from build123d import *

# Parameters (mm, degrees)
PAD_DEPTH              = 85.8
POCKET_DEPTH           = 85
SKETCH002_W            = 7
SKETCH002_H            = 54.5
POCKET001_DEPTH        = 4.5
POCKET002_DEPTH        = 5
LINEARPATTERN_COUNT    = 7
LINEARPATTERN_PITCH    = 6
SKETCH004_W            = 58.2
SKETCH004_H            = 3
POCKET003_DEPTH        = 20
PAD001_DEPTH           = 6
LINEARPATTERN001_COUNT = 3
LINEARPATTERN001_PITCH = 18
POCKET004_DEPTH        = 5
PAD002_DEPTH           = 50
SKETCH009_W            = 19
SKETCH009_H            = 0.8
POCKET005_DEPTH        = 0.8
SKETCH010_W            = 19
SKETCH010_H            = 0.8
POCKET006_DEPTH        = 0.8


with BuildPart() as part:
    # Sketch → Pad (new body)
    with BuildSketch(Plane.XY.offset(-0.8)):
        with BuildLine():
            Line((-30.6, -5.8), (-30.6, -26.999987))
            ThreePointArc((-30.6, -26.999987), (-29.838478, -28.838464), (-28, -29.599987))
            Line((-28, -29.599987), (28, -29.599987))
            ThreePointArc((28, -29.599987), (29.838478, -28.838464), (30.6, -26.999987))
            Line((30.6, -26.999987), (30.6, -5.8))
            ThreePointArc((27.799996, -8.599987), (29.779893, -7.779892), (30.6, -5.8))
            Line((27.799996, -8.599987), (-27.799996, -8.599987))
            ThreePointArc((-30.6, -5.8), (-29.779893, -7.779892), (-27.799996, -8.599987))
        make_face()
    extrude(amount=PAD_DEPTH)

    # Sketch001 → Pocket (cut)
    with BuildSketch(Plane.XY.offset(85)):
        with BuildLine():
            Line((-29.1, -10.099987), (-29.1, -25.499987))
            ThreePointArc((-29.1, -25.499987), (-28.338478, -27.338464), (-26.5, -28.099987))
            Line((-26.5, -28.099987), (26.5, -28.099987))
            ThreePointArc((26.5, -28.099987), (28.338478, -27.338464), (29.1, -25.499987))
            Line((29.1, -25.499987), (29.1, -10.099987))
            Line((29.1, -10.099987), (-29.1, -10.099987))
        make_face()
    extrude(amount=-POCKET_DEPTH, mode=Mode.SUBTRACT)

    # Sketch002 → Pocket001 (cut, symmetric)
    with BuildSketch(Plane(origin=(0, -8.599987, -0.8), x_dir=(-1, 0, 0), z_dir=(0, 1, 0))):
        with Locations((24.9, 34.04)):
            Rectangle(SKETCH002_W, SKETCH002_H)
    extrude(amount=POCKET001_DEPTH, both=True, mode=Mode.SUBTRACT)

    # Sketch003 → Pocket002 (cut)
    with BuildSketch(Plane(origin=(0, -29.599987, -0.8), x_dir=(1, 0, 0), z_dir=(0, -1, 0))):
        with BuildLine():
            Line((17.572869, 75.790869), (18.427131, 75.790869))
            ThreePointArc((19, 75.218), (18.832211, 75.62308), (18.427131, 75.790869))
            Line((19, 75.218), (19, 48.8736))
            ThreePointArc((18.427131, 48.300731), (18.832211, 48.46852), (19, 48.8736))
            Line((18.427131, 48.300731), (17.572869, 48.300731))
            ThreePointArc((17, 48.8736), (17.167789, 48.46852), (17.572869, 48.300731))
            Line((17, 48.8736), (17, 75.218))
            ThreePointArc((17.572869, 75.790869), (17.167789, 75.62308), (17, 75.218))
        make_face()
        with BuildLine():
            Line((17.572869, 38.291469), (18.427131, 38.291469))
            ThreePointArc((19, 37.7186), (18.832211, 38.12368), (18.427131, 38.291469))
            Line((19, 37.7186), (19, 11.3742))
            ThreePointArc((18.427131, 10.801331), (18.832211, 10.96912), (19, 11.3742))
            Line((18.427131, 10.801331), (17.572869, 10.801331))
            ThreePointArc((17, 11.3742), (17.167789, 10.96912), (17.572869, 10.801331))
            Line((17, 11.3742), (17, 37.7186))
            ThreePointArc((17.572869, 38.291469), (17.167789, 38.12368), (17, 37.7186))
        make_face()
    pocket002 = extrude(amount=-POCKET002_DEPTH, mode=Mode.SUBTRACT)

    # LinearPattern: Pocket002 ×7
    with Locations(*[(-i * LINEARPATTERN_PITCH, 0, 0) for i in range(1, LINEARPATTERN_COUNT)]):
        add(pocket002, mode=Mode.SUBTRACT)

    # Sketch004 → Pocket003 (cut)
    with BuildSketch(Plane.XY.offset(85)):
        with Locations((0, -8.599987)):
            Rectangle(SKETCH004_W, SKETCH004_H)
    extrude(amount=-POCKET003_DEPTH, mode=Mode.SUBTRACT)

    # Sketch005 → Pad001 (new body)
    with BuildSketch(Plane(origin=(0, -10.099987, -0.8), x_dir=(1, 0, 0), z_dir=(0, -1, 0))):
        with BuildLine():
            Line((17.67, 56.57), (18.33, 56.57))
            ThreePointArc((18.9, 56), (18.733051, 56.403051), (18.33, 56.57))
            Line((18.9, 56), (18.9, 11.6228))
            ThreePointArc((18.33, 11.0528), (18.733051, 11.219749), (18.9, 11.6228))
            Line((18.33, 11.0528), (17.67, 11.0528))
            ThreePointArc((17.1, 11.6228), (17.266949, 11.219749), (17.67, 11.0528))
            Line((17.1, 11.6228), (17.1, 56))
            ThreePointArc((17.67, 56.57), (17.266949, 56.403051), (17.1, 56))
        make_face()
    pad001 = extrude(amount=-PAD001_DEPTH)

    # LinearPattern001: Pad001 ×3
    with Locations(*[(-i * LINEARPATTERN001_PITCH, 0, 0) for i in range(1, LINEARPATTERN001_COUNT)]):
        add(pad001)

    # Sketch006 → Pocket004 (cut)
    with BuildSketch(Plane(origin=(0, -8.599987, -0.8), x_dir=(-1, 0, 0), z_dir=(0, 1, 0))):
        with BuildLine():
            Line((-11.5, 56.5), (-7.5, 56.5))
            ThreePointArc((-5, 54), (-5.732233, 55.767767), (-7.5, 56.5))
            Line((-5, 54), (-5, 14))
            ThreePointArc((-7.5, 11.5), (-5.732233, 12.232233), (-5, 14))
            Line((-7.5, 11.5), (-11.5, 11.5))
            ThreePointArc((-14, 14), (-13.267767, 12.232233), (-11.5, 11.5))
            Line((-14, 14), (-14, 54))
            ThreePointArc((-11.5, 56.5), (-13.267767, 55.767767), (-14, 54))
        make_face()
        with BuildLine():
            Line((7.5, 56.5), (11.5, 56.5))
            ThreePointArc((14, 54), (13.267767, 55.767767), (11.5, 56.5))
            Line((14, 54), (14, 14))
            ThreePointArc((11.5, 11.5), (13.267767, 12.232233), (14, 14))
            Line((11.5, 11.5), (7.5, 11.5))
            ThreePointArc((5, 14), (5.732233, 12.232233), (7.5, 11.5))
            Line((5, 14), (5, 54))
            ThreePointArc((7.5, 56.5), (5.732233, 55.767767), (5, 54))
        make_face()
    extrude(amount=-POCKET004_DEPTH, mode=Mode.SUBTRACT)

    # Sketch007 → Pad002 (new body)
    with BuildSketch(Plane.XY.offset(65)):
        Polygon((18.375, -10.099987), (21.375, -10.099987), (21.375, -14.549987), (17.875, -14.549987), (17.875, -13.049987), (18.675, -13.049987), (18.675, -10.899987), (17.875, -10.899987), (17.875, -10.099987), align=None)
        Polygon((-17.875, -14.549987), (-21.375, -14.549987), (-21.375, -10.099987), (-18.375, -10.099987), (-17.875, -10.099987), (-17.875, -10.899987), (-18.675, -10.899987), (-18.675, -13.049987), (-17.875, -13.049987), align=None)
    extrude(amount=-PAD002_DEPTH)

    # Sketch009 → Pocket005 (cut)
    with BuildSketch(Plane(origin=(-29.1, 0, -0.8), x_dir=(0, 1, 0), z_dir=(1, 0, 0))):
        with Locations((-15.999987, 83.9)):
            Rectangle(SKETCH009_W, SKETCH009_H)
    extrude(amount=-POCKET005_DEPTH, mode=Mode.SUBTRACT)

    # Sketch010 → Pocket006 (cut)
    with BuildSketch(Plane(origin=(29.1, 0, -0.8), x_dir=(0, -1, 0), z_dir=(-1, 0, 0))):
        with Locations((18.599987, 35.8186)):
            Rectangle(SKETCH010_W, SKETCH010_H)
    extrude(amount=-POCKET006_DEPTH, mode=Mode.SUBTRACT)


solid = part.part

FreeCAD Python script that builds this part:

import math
import FreeCAD as App
import Part
import Sketcher
Q = App.Units.Quantity

doc = App.newDocument("Part")
body = doc.addObject("PartDesign::Body", "Body")

sketch1 = doc.addObject("Sketcher::SketchObject", "Sketch")
body.addObject(sketch1)
sketch1.AttachmentSupport = (doc.XY_Plane, [""])
sketch1.MapMode = "FlatFace"
sketch1.AttachmentOffset = App.Placement(App.Vector(0, 0, -0.8), App.Rotation())
sketch1.addGeometry([
    Part.LineSegment(App.Vector(-30.6, -5.8, 0), App.Vector(-30.6, -26.999987, 0)),
    Part.ArcOfCircle(Part.Circle(App.Vector(-28, -26.999987, 0), App.Vector(0, 0, 1), 2.6), math.radians(-179.99999), math.radians(-90.00001)),
    Part.LineSegment(App.Vector(-28, -29.599987, 0), App.Vector(28, -29.599987, 0)),
    Part.ArcOfCircle(Part.Circle(App.Vector(28, -26.999987, 0), App.Vector(0, 0, 1), 2.6), math.radians(-89.99999), math.radians(-0.00001)),
    Part.LineSegment(App.Vector(30.6, -26.999987, 0), App.Vector(30.6, -5.8, 0)),
    Part.ArcOfCircle(Part.Circle(App.Vector(27.8, -5.799987, 0), App.Vector(0, 0, 1), 2.8), math.radians(-90.000083), math.radians(-0.000265)),
    Part.LineSegment(App.Vector(27.799996, -8.599987, 0), App.Vector(-27.799996, -8.599987, 0)),
    Part.ArcOfCircle(Part.Circle(App.Vector(-27.8, -5.799987, 0), App.Vector(0, 0, 1), 2.8), math.radians(-179.999735), math.radians(-89.999917)),
], False)
sketch1.addConstraint([
    Sketcher.Constraint("Tangent", 0, 2, 1, 1),
    Sketcher.Constraint("Tangent", 1, 2, 2, 1),
    Sketcher.Constraint("Tangent", 2, 2, 3, 1),
    Sketcher.Constraint("Tangent", 3, 2, 4, 1),
    Sketcher.Constraint("Coincident", 4, 2, 5, 2),
    Sketcher.Constraint("Tangent", 5, 1, 6, 1),
    Sketcher.Constraint("Tangent", 6, 2, 7, 2),
    Sketcher.Constraint("Coincident", 7, 1, 0, 1),
    Sketcher.Constraint("Vertical", 0),
    Sketcher.Constraint("Horizontal", 2),
    Sketcher.Constraint("Vertical", 4),
    Sketcher.Constraint("Horizontal", 6),
    Sketcher.Constraint("Equal", 1, 3),
    Sketcher.Constraint("Equal", 5, 7),
    Sketcher.Constraint("Symmetric", 4, 2, 7, 1, -2),
    Sketcher.Constraint("Radius", 1, Q("2.6 mm")),
    Sketcher.Constraint("Radius", 5, Q("2.8 mm")),
    Sketcher.Constraint("DistanceX", 2, 1, 2, 2, Q("56 mm")),
    Sketcher.Constraint("DistanceY", 2, 2, 5, 1, Q("21 mm")),
    Sketcher.Constraint("DistanceY", 4, 2, -1, 1, Q("5.8 mm")),
    Sketcher.Constraint("DistanceY", 0, 2, 0, 1, Q("21.199987 mm")),
])
pad1 = doc.addObject("PartDesign::Pad", "Pad")
body.addObject(pad1)
pad1.Profile = sketch1
pad1.Length = 85.8

sketch2 = doc.addObject("Sketcher::SketchObject", "Sketch001")
body.addObject(sketch2)
sketch2.AttachmentSupport = (doc.XY_Plane, [""])
sketch2.MapMode = "FlatFace"
sketch2.AttachmentOffset = App.Placement(App.Vector(0, 0, 85), App.Rotation())
sketch2.addGeometry([
    Part.LineSegment(App.Vector(-29.1, -10.099987, 0), App.Vector(-29.1, -25.499987, 0)),
    Part.ArcOfCircle(Part.Circle(App.Vector(-26.5, -25.499987, 0), App.Vector(0, 0, 1), 2.6), math.radians(-179.99999), math.radians(-90.00001)),
    Part.LineSegment(App.Vector(-26.5, -28.099987, 0), App.Vector(26.5, -28.099987, 0)),
    Part.ArcOfCircle(Part.Circle(App.Vector(26.5, -25.499987, 0), App.Vector(0, 0, 1), 2.6), math.radians(-89.99999), math.radians(-0.00001)),
    Part.LineSegment(App.Vector(29.1, -25.499987, 0), App.Vector(29.1, -10.099987, 0)),
    Part.LineSegment(App.Vector(29.1, -10.099987, 0), App.Vector(-29.1, -10.099987, 0)),
], False)
sketch2.addConstraint([
    Sketcher.Constraint("Tangent", 0, 2, 1, 1),
    Sketcher.Constraint("Tangent", 1, 2, 2, 1),
    Sketcher.Constraint("Tangent", 2, 2, 3, 1),
    Sketcher.Constraint("Tangent", 3, 2, 4, 1),
    Sketcher.Constraint("Coincident", 4, 2, 5, 1),
    Sketcher.Constraint("Coincident", 5, 2, 0, 1),
    Sketcher.Constraint("Vertical", 0),
    Sketcher.Constraint("Horizontal", 2),
    Sketcher.Constraint("Vertical", 4),
    Sketcher.Constraint("Horizontal", 5),
    Sketcher.Constraint("Equal", 1, 3),
    Sketcher.Constraint("Radius", 1, Q("2.6 mm")),
    Sketcher.Constraint("DistanceX", 2, 1, 2, 2, Q("53 mm")),
    Sketcher.Constraint("DistanceY", 0, 2, 0, 1, Q("15.4 mm")),
    Sketcher.Constraint("DistanceX", 1, 3, -1, 1, Q("26.5 mm")),
    Sketcher.Constraint("DistanceY", 1, 3, -1, 1, Q("25.499987 mm")),
])
pocket1 = doc.addObject("PartDesign::Pocket", "Pocket")
body.addObject(pocket1)
pocket1.Profile = sketch2
pocket1.Length = 85

sketch3 = doc.addObject("Sketcher::SketchObject", "Sketch002")
body.addObject(sketch3)
sketch3.AttachmentSupport = (doc.XZ_Plane, [""])
sketch3.MapMode = "FlatFace"
sketch3.AttachmentOffset = App.Placement(App.Vector(0, 0, 8.599987), App.Rotation())
sketch3.addGeometry([
    Part.LineSegment(App.Vector(-21.4, 60.49, 0), App.Vector(-21.4, 5.99, 0)),
    Part.LineSegment(App.Vector(-21.4, 5.99, 0), App.Vector(-28.4, 5.99, 0)),
    Part.LineSegment(App.Vector(-28.4, 5.99, 0), App.Vector(-28.4, 60.49, 0)),
    Part.LineSegment(App.Vector(-28.4, 60.49, 0), App.Vector(-21.4, 60.49, 0)),
], False)
sketch3.addConstraint([
    Sketcher.Constraint("Coincident", 0, 2, 1, 1),
    Sketcher.Constraint("Coincident", 1, 2, 2, 1),
    Sketcher.Constraint("Coincident", 2, 2, 3, 1),
    Sketcher.Constraint("Coincident", 3, 2, 0, 1),
    Sketcher.Constraint("Vertical", 0),
    Sketcher.Constraint("Horizontal", 1),
    Sketcher.Constraint("Vertical", 2),
    Sketcher.Constraint("Horizontal", 3),
    Sketcher.Constraint("DistanceX", 1, 2, 1, 1, Q("7 mm")),
    Sketcher.Constraint("DistanceY", 0, 2, 0, 1, Q("54.5 mm")),
    Sketcher.Constraint("DistanceX", 0, 2, -1, 1, Q("21.4 mm")),
    Sketcher.Constraint("DistanceY", -1, 1, 0, 2, Q("5.99 mm")),
])
pocket2 = doc.addObject("PartDesign::Pocket", "Pocket001")
body.addObject(pocket2)
pocket2.Profile = sketch3
pocket2.Length = 9
pocket2.Midplane = True

sketch4 = doc.addObject("Sketcher::SketchObject", "Sketch003")
body.addObject(sketch4)
sketch4.AttachmentSupport = (doc.XZ_Plane, [""])
sketch4.MapMode = "FlatFace"
sketch4.AttachmentOffset = App.Placement(App.Vector(0, 0, 29.599987), App.Rotation())
sketch4.addGeometry([
    Part.LineSegment(App.Vector(18.427131, 74.990869, 0), App.Vector(17.572869, 74.990869, 0)),
    Part.ArcOfCircle(Part.Circle(App.Vector(17.572867, 74.418002, 0), App.Vector(0, 0, 1), 0.572867), math.radians(89.999848), math.radians(180.000152)),
    Part.LineSegment(App.Vector(17, 74.418, 0), App.Vector(17, 48.0736, 0)),
    Part.ArcOfCircle(Part.Circle(App.Vector(17.572867, 48.073598, 0), App.Vector(0, 0, 1), 0.572867), math.radians(179.999848), math.radians(270.000152)),
    Part.LineSegment(App.Vector(17.572869, 47.500731, 0), App.Vector(18.427131, 47.500731, 0)),
    Part.ArcOfCircle(Part.Circle(App.Vector(18.427133, 48.073598, 0), App.Vector(0, 0, 1), 0.572867), math.radians(-90.000152), math.radians(0.000152)),
    Part.LineSegment(App.Vector(19, 48.0736, 0), App.Vector(19, 74.418, 0)),
    Part.ArcOfCircle(Part.Circle(App.Vector(18.427133, 74.418002, 0), App.Vector(0, 0, 1), 0.572867), math.radians(-0.000152), math.radians(90.000152)),
    Part.LineSegment(App.Vector(18.427131, 37.491469, 0), App.Vector(17.572869, 37.491469, 0)),
    Part.ArcOfCircle(Part.Circle(App.Vector(17.572867, 36.918602, 0), App.Vector(0, 0, 1), 0.572867), math.radians(89.999848), math.radians(180.000152)),
    Part.LineSegment(App.Vector(17, 36.9186, 0), App.Vector(17, 10.5742, 0)),
    Part.ArcOfCircle(Part.Circle(App.Vector(17.572867, 10.574198, 0), App.Vector(0, 0, 1), 0.572867), math.radians(179.999848), math.radians(270.000152)),
    Part.LineSegment(App.Vector(17.572869, 10.001331, 0), App.Vector(18.427131, 10.001331, 0)),
    Part.ArcOfCircle(Part.Circle(App.Vector(18.427133, 10.574198, 0), App.Vector(0, 0, 1), 0.572867), math.radians(-90.000152), math.radians(0.000152)),
    Part.LineSegment(App.Vector(19, 10.5742, 0), App.Vector(19, 36.9186, 0)),
    Part.ArcOfCircle(Part.Circle(App.Vector(18.427133, 36.918602, 0), App.Vector(0, 0, 1), 0.572867), math.radians(-0.000152), math.radians(90.000152)),
], False)
sketch4.addConstraint([
    Sketcher.Constraint("Coincident", 0, 2, 1, 1),
    Sketcher.Constraint("Coincident", 1, 2, 2, 1),
    Sketcher.Constraint("Coincident", 2, 2, 3, 1),
    Sketcher.Constraint("Coincident", 3, 2, 4, 1),
    Sketcher.Constraint("Coincident", 4, 2, 5, 1),
    Sketcher.Constraint("Coincident", 5, 2, 6, 1),
    Sketcher.Constraint("Coincident", 6, 2, 7, 1),
    Sketcher.Constraint("Coincident", 7, 2, 0, 1),
    Sketcher.Constraint("Coincident", 8, 2, 9, 1),
    Sketcher.Constraint("Coincident", 9, 2, 10, 1),
    Sketcher.Constraint("Coincident", 10, 2, 11, 1),
    Sketcher.Constraint("Coincident", 11, 2, 12, 1),
    Sketcher.Constraint("Coincident", 12, 2, 13, 1),
    Sketcher.Constraint("Coincident", 13, 2, 14, 1),
    Sketcher.Constraint("Coincident", 14, 2, 15, 1),
    Sketcher.Constraint("Coincident", 15, 2, 8, 1),
    Sketcher.Constraint("Horizontal", 0),
    Sketcher.Constraint("Vertical", 2),
    Sketcher.Constraint("Horizontal", 4),
    Sketcher.Constraint("Vertical", 6),
    Sketcher.Constraint("Horizontal", 8),
    Sketcher.Constraint("Vertical", 10),
    Sketcher.Constraint("Horizontal", 12),
    Sketcher.Constraint("Vertical", 14),
    Sketcher.Constraint("Equal", 1, 3),
    Sketcher.Constraint("Equal", 3, 5),
    Sketcher.Constraint("Equal", 5, 7),
    Sketcher.Constraint("Equal", 7, 9),
    Sketcher.Constraint("Equal", 9, 11),
    Sketcher.Constraint("Equal", 11, 13),
    Sketcher.Constraint("Equal", 13, 15),
    Sketcher.Constraint("Horizontal", 7, 3, 1, 2),
    Sketcher.Constraint("Horizontal", 5, 3, 2, 2),
    Sketcher.Constraint("Horizontal", 2, 2, 5, 2),
    Sketcher.Constraint("Horizontal", 1, 2, 6, 2),
    Sketcher.Constraint("Horizontal", 15, 3, 9, 2),
    Sketcher.Constraint("Horizontal", 13, 3, 10, 2),
    Sketcher.Constraint("Horizontal", 10, 2, 13, 2),
    Sketcher.Constraint("Horizontal", 9, 2, 14, 2),
    Sketcher.Constraint("Vertical", 3, 3, 9, 3),
    Sketcher.Constraint("Vertical", 7, 3, 13, 3),
    Sketcher.Constraint("Vertical", 11, 3, 0, 2),
    Sketcher.Constraint("Vertical", 0, 2, 3, 2),
    Sketcher.Constraint("Vertical", 15, 3, 4, 2),
    Sketcher.Constraint("Vertical", 4, 2, 7, 2),
    Sketcher.Constraint("Vertical", 3, 2, 8, 2),
    Sketcher.Constraint("Vertical", 8, 2, 11, 2),
    Sketcher.Constraint("Vertical", 7, 2, 12, 2),
    Sketcher.Constraint("Vertical", 12, 2, 15, 2),
    Sketcher.Constraint("Equal", 6, 10),
    Sketcher.Constraint("DistanceX", -1, 1, 1, 2, Q("17 mm")),
    Sketcher.Constraint("DistanceX", -1, 1, 5, 2, Q("19 mm")),
    Sketcher.Constraint("DistanceY", 2, 2, 2, 1, Q("26.3444 mm")),
    Sketcher.Constraint("DistanceY", -1, 1, 1, 3, Q("74.418002 mm")),
    Sketcher.Constraint("Radius", 1, Q("0.572867 mm")),
    Sketcher.Constraint("DistanceY", 9, 3, 2, 2, Q("11.154998 mm")),
])
pocket3 = doc.addObject("PartDesign::Pocket", "Pocket002")
body.addObject(pocket3)
pocket3.Profile = sketch4
pocket3.Length = 5
doc.recompute()

linearpattern = doc.addObject("PartDesign::LinearPattern", "LinearPattern")
body.addObject(linearpattern)
linearpattern.Originals = [pocket3]
linearpattern.Direction = (doc.X_Axis, [""])
linearpattern.Mode = "offset"
linearpattern.Offset = 6
linearpattern.Occurrences = 7
linearpattern.Reversed = True
body.Tip = linearpattern

sketch5 = doc.addObject("Sketcher::SketchObject", "Sketch004")
body.addObject(sketch5)
sketch5.AttachmentSupport = (doc.XY_Plane, [""])
sketch5.MapMode = "FlatFace"
sketch5.AttachmentOffset = App.Placement(App.Vector(0, 0, 85), App.Rotation())
sketch5.addGeometry([
    Part.LineSegment(App.Vector(-29.1, -7.099987, 0), App.Vector(-29.1, -10.099987, 0)),
    Part.LineSegment(App.Vector(-29.1, -10.099987, 0), App.Vector(29.1, -10.099987, 0)),
    Part.LineSegment(App.Vector(29.1, -10.099987, 0), App.Vector(29.1, -7.099987, 0)),
    Part.LineSegment(App.Vector(29.1, -7.099987, 0), App.Vector(-29.1, -7.099987, 0)),
], False)
sketch5.addConstraint([
    Sketcher.Constraint("Coincident", 0, 2, 1, 1),
    Sketcher.Constraint("Coincident", 1, 2, 2, 1),
    Sketcher.Constraint("Coincident", 2, 2, 3, 1),
    Sketcher.Constraint("Coincident", 3, 2, 0, 1),
    Sketcher.Constraint("Vertical", 0),
    Sketcher.Constraint("Horizontal", 1),
    Sketcher.Constraint("Vertical", 2),
    Sketcher.Constraint("Horizontal", 3),
    Sketcher.Constraint("DistanceY", 0, 2, 0, 1, Q("3 mm")),
    Sketcher.Constraint("DistanceX", 1, 1, 1, 2, Q("58.2 mm")),
    Sketcher.Constraint("DistanceX", 0, 2, -1, 1, Q("29.1 mm")),
    Sketcher.Constraint("DistanceY", 0, 2, -1, 1, Q("10.099987 mm")),
])
pocket4 = doc.addObject("PartDesign::Pocket", "Pocket003")
body.addObject(pocket4)
pocket4.Profile = sketch5
pocket4.Length = 20

sketch6 = doc.addObject("Sketcher::SketchObject", "Sketch005")
body.addObject(sketch6)
sketch6.AttachmentSupport = (doc.XZ_Plane, [""])
sketch6.MapMode = "FlatFace"
sketch6.AttachmentOffset = App.Placement(App.Vector(0, 0, 10.099987), App.Rotation())
sketch6.addGeometry([
    Part.LineSegment(App.Vector(18.33, 55.77, 0), App.Vector(17.67, 55.77, 0)),
    Part.ArcOfCircle(Part.Circle(App.Vector(17.67, 55.2, 0), App.Vector(0, 0, 1), 0.57), math.radians(89.999954), math.radians(180.000046)),
    Part.LineSegment(App.Vector(17.1, 55.2, 0), App.Vector(17.1, 10.8228, 0)),
    Part.ArcOfCircle(Part.Circle(App.Vector(17.67, 10.8228, 0), App.Vector(0, 0, 1), 0.57), math.radians(179.999954), math.radians(270.000046)),
    Part.LineSegment(App.Vector(17.67, 10.2528, 0), App.Vector(18.33, 10.2528, 0)),
    Part.ArcOfCircle(Part.Circle(App.Vector(18.33, 10.8228, 0), App.Vector(0, 0, 1), 0.57), math.radians(-90.000046), math.radians(0.000046)),
    Part.LineSegment(App.Vector(18.9, 10.8228, 0), App.Vector(18.9, 55.2, 0)),
    Part.ArcOfCircle(Part.Circle(App.Vector(18.33, 55.2, 0), App.Vector(0, 0, 1), 0.57), math.radians(-0.000046), math.radians(90.000046)),
], False)
sketch6.addConstraint([
    Sketcher.Constraint("Tangent", 0, 2, 1, 1),
    Sketcher.Constraint("Tangent", 1, 2, 2, 1),
    Sketcher.Constraint("Tangent", 2, 2, 3, 1),
    Sketcher.Constraint("Tangent", 3, 2, 4, 1),
    Sketcher.Constraint("Tangent", 4, 2, 5, 1),
    Sketcher.Constraint("Tangent", 5, 2, 6, 1),
    Sketcher.Constraint("Tangent", 6, 2, 7, 1),
    Sketcher.Constraint("Tangent", 7, 2, 0, 1),
    Sketcher.Constraint("Horizontal", 0),
    Sketcher.Constraint("Vertical", 2),
    Sketcher.Constraint("Horizontal", 4),
    Sketcher.Constraint("Vertical", 6),
    Sketcher.Constraint("Equal", 1, 3),
    Sketcher.Constraint("Equal", 3, 5),
    Sketcher.Constraint("Equal", 5, 7),
    Sketcher.Constraint("Radius", 1, Q("0.57 mm")),
    Sketcher.Constraint("DistanceX", 0, 2, 0, 1, Q("0.66 mm")),
    Sketcher.Constraint("DistanceY", -1, 1, 1, 3, Q("55.2 mm")),
    Sketcher.Constraint("DistanceX", -1, 1, 1, 2, Q("17.1 mm")),
    Sketcher.Constraint("DistanceY", 2, 2, 2, 1, Q("44.3772 mm")),
])
pad2 = doc.addObject("PartDesign::Pad", "Pad001")
body.addObject(pad2)
pad2.Profile = sketch6
pad2.Length = 6
pad2.Reversed = True
doc.recompute()

linearpattern2 = doc.addObject("PartDesign::LinearPattern", "LinearPattern001")
body.addObject(linearpattern2)
linearpattern2.Originals = [pad2]
linearpattern2.Direction = (doc.X_Axis, [""])
linearpattern2.Mode = "offset"
linearpattern2.Offset = 18
linearpattern2.Occurrences = 3
linearpattern2.Reversed = True
body.Tip = linearpattern2

sketch7 = doc.addObject("Sketcher::SketchObject", "Sketch006")
body.addObject(sketch7)
sketch7.AttachmentSupport = (doc.XZ_Plane, [""])
sketch7.MapMode = "FlatFace"
sketch7.AttachmentOffset = App.Placement(App.Vector(0, 0, 8.599987), App.Rotation())
sketch7.addGeometry([
    Part.LineSegment(App.Vector(7.5, 55.7, 0), App.Vector(11.5, 55.7, 0)),
    Part.ArcOfCircle(Part.Circle(App.Vector(11.5, 53.2, 0), App.Vector(0, 0, 1), 2.5), math.radians(-0.000004), math.radians(90.000004)),
    Part.LineSegment(App.Vector(14, 53.2, 0), App.Vector(14, 13.2, 0)),
    Part.ArcOfCircle(Part.Circle(App.Vector(11.5, 13.2, 0), App.Vector(0, 0, 1), 2.5), math.radians(-90.000004), math.radians(0.000004)),
    Part.LineSegment(App.Vector(11.5, 10.7, 0), App.Vector(7.5, 10.7, 0)),
    Part.ArcOfCircle(Part.Circle(App.Vector(7.5, 13.2, 0), App.Vector(0, 0, 1), 2.5), math.radians(179.999996), math.radians(270.000004)),
    Part.LineSegment(App.Vector(5, 13.2, 0), App.Vector(5, 53.2, 0)),
    Part.ArcOfCircle(Part.Circle(App.Vector(7.5, 53.2, 0), App.Vector(0, 0, 1), 2.5), math.radians(89.999996), math.radians(180.000004)),
    Part.LineSegment(App.Vector(-11.5, 55.7, 0), App.Vector(-7.5, 55.7, 0)),
    Part.ArcOfCircle(Part.Circle(App.Vector(-7.5, 53.2, 0), App.Vector(0, 0, 1), 2.5), math.radians(-0.000004), math.radians(90.000004)),
    Part.LineSegment(App.Vector(-5, 53.2, 0), App.Vector(-5, 13.2, 0)),
    Part.ArcOfCircle(Part.Circle(App.Vector(-7.5, 13.2, 0), App.Vector(0, 0, 1), 2.5), math.radians(-90.000004), math.radians(0.000004)),
    Part.LineSegment(App.Vector(-7.5, 10.7, 0), App.Vector(-11.5, 10.7, 0)),
    Part.ArcOfCircle(Part.Circle(App.Vector(-11.5, 13.2, 0), App.Vector(0, 0, 1), 2.5), math.radians(179.999996), math.radians(270.000004)),
    Part.LineSegment(App.Vector(-14, 13.2, 0), App.Vector(-14, 53.2, 0)),
    Part.ArcOfCircle(Part.Circle(App.Vector(-11.5, 53.2, 0), App.Vector(0, 0, 1), 2.5), math.radians(89.999996), math.radians(180.000004)),
], False)
sketch7.addConstraint([
    Sketcher.Constraint("Tangent", 0, 2, 1, 2),
    Sketcher.Constraint("Tangent", 1, 1, 2, 1),
    Sketcher.Constraint("Tangent", 2, 2, 3, 2),
    Sketcher.Constraint("Tangent", 3, 1, 4, 1),
    Sketcher.Constraint("Tangent", 4, 2, 5, 2),
    Sketcher.Constraint("Tangent", 5, 1, 6, 1),
    Sketcher.Constraint("Tangent", 6, 2, 7, 2),
    Sketcher.Constraint("Tangent", 7, 1, 0, 1),
    Sketcher.Constraint("Tangent", 8, 2, 9, 2),
    Sketcher.Constraint("Tangent", 9, 1, 10, 1),
    Sketcher.Constraint("Tangent", 10, 2, 11, 2),
    Sketcher.Constraint("Tangent", 11, 1, 12, 1),
    Sketcher.Constraint("Tangent", 12, 2, 13, 2),
    Sketcher.Constraint("Tangent", 13, 1, 14, 1),
    Sketcher.Constraint("Tangent", 14, 2, 15, 2),
    Sketcher.Constraint("Tangent", 15, 1, 8, 1),
    Sketcher.Constraint("Horizontal", 0),
    Sketcher.Constraint("Vertical", 2),
    Sketcher.Constraint("Horizontal", 4),
    Sketcher.Constraint("Vertical", 6),
    Sketcher.Constraint("Horizontal", 8),
    Sketcher.Constraint("Vertical", 10),
    Sketcher.Constraint("Horizontal", 12),
    Sketcher.Constraint("Vertical", 14),
    Sketcher.Constraint("Equal", 1, 3),
    Sketcher.Constraint("Equal", 3, 5),
    Sketcher.Constraint("Equal", 5, 7),
    Sketcher.Constraint("Equal", 7, 9),
    Sketcher.Constraint("Equal", 9, 11),
    Sketcher.Constraint("Equal", 11, 13),
    Sketcher.Constraint("Equal", 13, 15),
    Sketcher.Constraint("Symmetric", 7, 3, 9, 3, -2),
    Sketcher.Constraint("Symmetric", 3, 3, 13, 3, -2),
    Sketcher.Constraint("Radius", 1, Q("2.5 mm")),
    Sketcher.Constraint("DistanceX", 0, 1, 0, 2, Q("4 mm")),
    Sketcher.Constraint("DistanceY", 2, 2, 2, 1, Q("40 mm")),
    Sketcher.Constraint("DistanceX", -1, 1, 1, 1, Q("14 mm")),
    Sketcher.Constraint("DistanceY", -1, 1, 1, 3, Q("53.2 mm")),
])
pocket5 = doc.addObject("PartDesign::Pocket", "Pocket004")
body.addObject(pocket5)
pocket5.Profile = sketch7
pocket5.Length = 5
pocket5.Reversed = True

sketch8 = doc.addObject("Sketcher::SketchObject", "Sketch007")
body.addObject(sketch8)
sketch8.AttachmentSupport = (doc.XY_Plane, [""])
sketch8.MapMode = "FlatFace"
sketch8.AttachmentOffset = App.Placement(App.Vector(0, 0, 65), App.Rotation())
sketch8.addGeometry([
    Part.LineSegment(App.Vector(21.375, -10.099987, 0), App.Vector(17.875, -10.099987, 0)),
    Part.LineSegment(App.Vector(17.875, -10.099987, 0), App.Vector(17.875, -10.899987, 0)),
    Part.LineSegment(App.Vector(17.875, -10.899987, 0), App.Vector(18.675, -10.899987, 0)),
    Part.LineSegment(App.Vector(18.675, -10.899987, 0), App.Vector(18.675, -13.049987, 0)),
    Part.LineSegment(App.Vector(18.675, -13.049987, 0), App.Vector(17.875, -13.049987, 0)),
    Part.LineSegment(App.Vector(17.875, -13.049987, 0), App.Vector(17.875, -14.549987, 0)),
    Part.LineSegment(App.Vector(17.875, -14.549987, 0), App.Vector(21.375, -14.549987, 0)),
    Part.LineSegment(App.Vector(21.375, -14.549987, 0), App.Vector(21.375, -10.099987, 0)),
    Part.LineSegment(App.Vector(-21.375, -14.549987, 0), App.Vector(-17.875, -14.549987, 0)),
    Part.LineSegment(App.Vector(-17.875, -14.549987, 0), App.Vector(-17.875, -13.049987, 0)),
    Part.LineSegment(App.Vector(-17.875, -13.049987, 0), App.Vector(-18.675, -13.049987, 0)),
    Part.LineSegment(App.Vector(-18.675, -13.049987, 0), App.Vector(-18.675, -10.899987, 0)),
    Part.LineSegment(App.Vector(-18.675, -10.899987, 0), App.Vector(-17.875, -10.899987, 0)),
    Part.LineSegment(App.Vector(-17.875, -10.899987, 0), App.Vector(-17.875, -10.099987, 0)),
    Part.LineSegment(App.Vector(-17.875, -10.099987, 0), App.Vector(-21.375, -10.099987, 0)),
    Part.LineSegment(App.Vector(-21.375, -10.099987, 0), App.Vector(-21.375, -14.549987, 0)),
], False)
sketch8.addConstraint([
    Sketcher.Constraint("Coincident", 0, 2, 1, 1),
    Sketcher.Constraint("Coincident", 1, 2, 2, 1),
    Sketcher.Constraint("Coincident", 2, 2, 3, 1),
    Sketcher.Constraint("Coincident", 3, 2, 4, 1),
    Sketcher.Constraint("Coincident", 4, 2, 5, 1),
    Sketcher.Constraint("Coincident", 5, 2, 6, 1),
    Sketcher.Constraint("Coincident", 6, 2, 7, 1),
    Sketcher.Constraint("Coincident", 7, 2, 0, 1),
    Sketcher.Constraint("Coincident", 8, 2, 9, 1),
    Sketcher.Constraint("Coincident", 9, 2, 10, 1),
    Sketcher.Constraint("Coincident", 10, 2, 11, 1),
    Sketcher.Constraint("Coincident", 11, 2, 12, 1),
    Sketcher.Constraint("Coincident", 12, 2, 13, 1),
    Sketcher.Constraint("Coincident", 13, 2, 14, 1),
    Sketcher.Constraint("Coincident", 14, 2, 15, 1),
    Sketcher.Constraint("Coincident", 15, 2, 8, 1),
    Sketcher.Constraint("Horizontal", 0),
    Sketcher.Constraint("Vertical", 1),
    Sketcher.Constraint("Horizontal", 2),
    Sketcher.Constraint("Vertical", 3),
    Sketcher.Constraint("Horizontal", 4),
    Sketcher.Constraint("Vertical", 5),
    Sketcher.Constraint("Horizontal", 6),
    Sketcher.Constraint("Vertical", 7),
    Sketcher.Constraint("Horizontal", 8),
    Sketcher.Constraint("Vertical", 9),
    Sketcher.Constraint("Horizontal", 10),
    Sketcher.Constraint("Vertical", 11),
    Sketcher.Constraint("Horizontal", 12),
    Sketcher.Constraint("Vertical", 13),
    Sketcher.Constraint("Horizontal", 14),
    Sketcher.Constraint("Vertical", 15),
    Sketcher.Constraint("Symmetric", 5, 2, 8, 2, -2),
    Sketcher.Constraint("Symmetric", 3, 2, 10, 2, -2),
    Sketcher.Constraint("Symmetric", 1, 2, 12, 2, -2),
    Sketcher.Constraint("Symmetric", 7, 2, 14, 2, -2),
    Sketcher.Constraint("Vertical", 1, 2, 4, 2),
    Sketcher.Constraint("Equal", 12, 1),
    Sketcher.Constraint("DistanceX", 0, 2, 0, 1, Q("3.5 mm")),
    Sketcher.Constraint("DistanceX", 2, 1, 2, 2, Q("0.8 mm")),
    Sketcher.Constraint("DistanceY", 5, 2, 5, 1, Q("1.5 mm")),
    Sketcher.Constraint("DistanceY", 3, 2, 3, 1, Q("2.15 mm")),
    Sketcher.Constraint("DistanceX", 8, 2, 5, 2, Q("35.75 mm")),
    Sketcher.Constraint("DistanceY", 0, 2, -1, 1, Q("10.099987 mm")),
])
pad3 = doc.addObject("PartDesign::Pad", "Pad002")
body.addObject(pad3)
pad3.Profile = sketch8
pad3.Length = 50
pad3.Reversed = True

sketch9 = doc.addObject("Sketcher::SketchObject", "Sketch008")
body.addObject(sketch9)
sketch9.AttachmentSupport = (doc.YZ_Plane, [""])
sketch9.MapMode = "FlatFace"
sketch9.AttachmentOffset = App.Placement(App.Vector(0, 0, -29.1), App.Rotation())
sketch9.addGeometry([
    Part.LineSegment(App.Vector(-25.499987, 83.5, 0), App.Vector(-25.499987, 82.7, 0)),
    Part.LineSegment(App.Vector(-25.499987, 82.7, 0), App.Vector(-6.499987, 82.7, 0)),
    Part.LineSegment(App.Vector(-6.499987, 82.7, 0), App.Vector(-6.499987, 83.5, 0)),
    Part.LineSegment(App.Vector(-6.499987, 83.5, 0), App.Vector(-25.499987, 83.5, 0)),
], False)
sketch9.addConstraint([
    Sketcher.Constraint("Coincident", 0, 2, 1, 1),
    Sketcher.Constraint("Coincident", 1, 2, 2, 1),
    Sketcher.Constraint("Coincident", 2, 2, 3, 1),
    Sketcher.Constraint("Coincident", 3, 2, 0, 1),
    Sketcher.Constraint("Vertical", 0),
    Sketcher.Constraint("Horizontal", 1),
    Sketcher.Constraint("Vertical", 2),
    Sketcher.Constraint("Horizontal", 3),
    Sketcher.Constraint("DistanceX", 1, 1, 1, 2, Q("19 mm")),
    Sketcher.Constraint("DistanceY", 0, 2, 0, 1, Q("0.8 mm")),
    Sketcher.Constraint("DistanceY", -1, 1, 0, 2, Q("82.7 mm")),
    Sketcher.Constraint("DistanceX", 0, 2, -1, 1, Q("25.499987 mm")),
])
pocket6 = doc.addObject("PartDesign::Pocket", "Pocket005")
body.addObject(pocket6)
pocket6.Profile = sketch9
pocket6.Length = 0.8

sketch10 = doc.addObject("Sketcher::SketchObject", "Sketch009")
body.addObject(sketch10)
sketch10.AttachmentSupport = (doc.YZ_Plane, [""])
sketch10.MapMode = "FlatFace"
sketch10.AttachmentOffset = App.Placement(App.Vector(0, 0, 29.1), App.Rotation())
sketch10.addGeometry([
    Part.LineSegment(App.Vector(-9.099987, 35.4186, 0), App.Vector(-9.099987, 34.6186, 0)),
    Part.LineSegment(App.Vector(-9.099987, 34.6186, 0), App.Vector(-28.099987, 34.6186, 0)),
    Part.LineSegment(App.Vector(-28.099987, 34.6186, 0), App.Vector(-28.099987, 35.4186, 0)),
    Part.LineSegment(App.Vector(-28.099987, 35.4186, 0), App.Vector(-9.099987, 35.4186, 0)),
], False)
sketch10.addConstraint([
    Sketcher.Constraint("Coincident", 0, 2, 1, 1),
    Sketcher.Constraint("Coincident", 1, 2, 2, 1),
    Sketcher.Constraint("Coincident", 2, 2, 3, 1),
    Sketcher.Constraint("Coincident", 3, 2, 0, 1),
    Sketcher.Constraint("Vertical", 0),
    Sketcher.Constraint("Horizontal", 1),
    Sketcher.Constraint("Vertical", 2),
    Sketcher.Constraint("Horizontal", 3),
    Sketcher.Constraint("DistanceX", 1, 2, 1, 1, Q("19 mm")),
    Sketcher.Constraint("DistanceY", 0, 2, 0, 1, Q("0.8 mm")),
    Sketcher.Constraint("DistanceY", -1, 1, 0, 2, Q("34.6186 mm")),
    Sketcher.Constraint("DistanceX", 0, 2, -1, 1, Q("9.099987 mm")),
])
pocket7 = doc.addObject("PartDesign::Pocket", "Pocket006")
body.addObject(pocket7)
pocket7.Profile = sketch10
pocket7.Length = 0.8
pocket7.Reversed = True

doc.recompute()
